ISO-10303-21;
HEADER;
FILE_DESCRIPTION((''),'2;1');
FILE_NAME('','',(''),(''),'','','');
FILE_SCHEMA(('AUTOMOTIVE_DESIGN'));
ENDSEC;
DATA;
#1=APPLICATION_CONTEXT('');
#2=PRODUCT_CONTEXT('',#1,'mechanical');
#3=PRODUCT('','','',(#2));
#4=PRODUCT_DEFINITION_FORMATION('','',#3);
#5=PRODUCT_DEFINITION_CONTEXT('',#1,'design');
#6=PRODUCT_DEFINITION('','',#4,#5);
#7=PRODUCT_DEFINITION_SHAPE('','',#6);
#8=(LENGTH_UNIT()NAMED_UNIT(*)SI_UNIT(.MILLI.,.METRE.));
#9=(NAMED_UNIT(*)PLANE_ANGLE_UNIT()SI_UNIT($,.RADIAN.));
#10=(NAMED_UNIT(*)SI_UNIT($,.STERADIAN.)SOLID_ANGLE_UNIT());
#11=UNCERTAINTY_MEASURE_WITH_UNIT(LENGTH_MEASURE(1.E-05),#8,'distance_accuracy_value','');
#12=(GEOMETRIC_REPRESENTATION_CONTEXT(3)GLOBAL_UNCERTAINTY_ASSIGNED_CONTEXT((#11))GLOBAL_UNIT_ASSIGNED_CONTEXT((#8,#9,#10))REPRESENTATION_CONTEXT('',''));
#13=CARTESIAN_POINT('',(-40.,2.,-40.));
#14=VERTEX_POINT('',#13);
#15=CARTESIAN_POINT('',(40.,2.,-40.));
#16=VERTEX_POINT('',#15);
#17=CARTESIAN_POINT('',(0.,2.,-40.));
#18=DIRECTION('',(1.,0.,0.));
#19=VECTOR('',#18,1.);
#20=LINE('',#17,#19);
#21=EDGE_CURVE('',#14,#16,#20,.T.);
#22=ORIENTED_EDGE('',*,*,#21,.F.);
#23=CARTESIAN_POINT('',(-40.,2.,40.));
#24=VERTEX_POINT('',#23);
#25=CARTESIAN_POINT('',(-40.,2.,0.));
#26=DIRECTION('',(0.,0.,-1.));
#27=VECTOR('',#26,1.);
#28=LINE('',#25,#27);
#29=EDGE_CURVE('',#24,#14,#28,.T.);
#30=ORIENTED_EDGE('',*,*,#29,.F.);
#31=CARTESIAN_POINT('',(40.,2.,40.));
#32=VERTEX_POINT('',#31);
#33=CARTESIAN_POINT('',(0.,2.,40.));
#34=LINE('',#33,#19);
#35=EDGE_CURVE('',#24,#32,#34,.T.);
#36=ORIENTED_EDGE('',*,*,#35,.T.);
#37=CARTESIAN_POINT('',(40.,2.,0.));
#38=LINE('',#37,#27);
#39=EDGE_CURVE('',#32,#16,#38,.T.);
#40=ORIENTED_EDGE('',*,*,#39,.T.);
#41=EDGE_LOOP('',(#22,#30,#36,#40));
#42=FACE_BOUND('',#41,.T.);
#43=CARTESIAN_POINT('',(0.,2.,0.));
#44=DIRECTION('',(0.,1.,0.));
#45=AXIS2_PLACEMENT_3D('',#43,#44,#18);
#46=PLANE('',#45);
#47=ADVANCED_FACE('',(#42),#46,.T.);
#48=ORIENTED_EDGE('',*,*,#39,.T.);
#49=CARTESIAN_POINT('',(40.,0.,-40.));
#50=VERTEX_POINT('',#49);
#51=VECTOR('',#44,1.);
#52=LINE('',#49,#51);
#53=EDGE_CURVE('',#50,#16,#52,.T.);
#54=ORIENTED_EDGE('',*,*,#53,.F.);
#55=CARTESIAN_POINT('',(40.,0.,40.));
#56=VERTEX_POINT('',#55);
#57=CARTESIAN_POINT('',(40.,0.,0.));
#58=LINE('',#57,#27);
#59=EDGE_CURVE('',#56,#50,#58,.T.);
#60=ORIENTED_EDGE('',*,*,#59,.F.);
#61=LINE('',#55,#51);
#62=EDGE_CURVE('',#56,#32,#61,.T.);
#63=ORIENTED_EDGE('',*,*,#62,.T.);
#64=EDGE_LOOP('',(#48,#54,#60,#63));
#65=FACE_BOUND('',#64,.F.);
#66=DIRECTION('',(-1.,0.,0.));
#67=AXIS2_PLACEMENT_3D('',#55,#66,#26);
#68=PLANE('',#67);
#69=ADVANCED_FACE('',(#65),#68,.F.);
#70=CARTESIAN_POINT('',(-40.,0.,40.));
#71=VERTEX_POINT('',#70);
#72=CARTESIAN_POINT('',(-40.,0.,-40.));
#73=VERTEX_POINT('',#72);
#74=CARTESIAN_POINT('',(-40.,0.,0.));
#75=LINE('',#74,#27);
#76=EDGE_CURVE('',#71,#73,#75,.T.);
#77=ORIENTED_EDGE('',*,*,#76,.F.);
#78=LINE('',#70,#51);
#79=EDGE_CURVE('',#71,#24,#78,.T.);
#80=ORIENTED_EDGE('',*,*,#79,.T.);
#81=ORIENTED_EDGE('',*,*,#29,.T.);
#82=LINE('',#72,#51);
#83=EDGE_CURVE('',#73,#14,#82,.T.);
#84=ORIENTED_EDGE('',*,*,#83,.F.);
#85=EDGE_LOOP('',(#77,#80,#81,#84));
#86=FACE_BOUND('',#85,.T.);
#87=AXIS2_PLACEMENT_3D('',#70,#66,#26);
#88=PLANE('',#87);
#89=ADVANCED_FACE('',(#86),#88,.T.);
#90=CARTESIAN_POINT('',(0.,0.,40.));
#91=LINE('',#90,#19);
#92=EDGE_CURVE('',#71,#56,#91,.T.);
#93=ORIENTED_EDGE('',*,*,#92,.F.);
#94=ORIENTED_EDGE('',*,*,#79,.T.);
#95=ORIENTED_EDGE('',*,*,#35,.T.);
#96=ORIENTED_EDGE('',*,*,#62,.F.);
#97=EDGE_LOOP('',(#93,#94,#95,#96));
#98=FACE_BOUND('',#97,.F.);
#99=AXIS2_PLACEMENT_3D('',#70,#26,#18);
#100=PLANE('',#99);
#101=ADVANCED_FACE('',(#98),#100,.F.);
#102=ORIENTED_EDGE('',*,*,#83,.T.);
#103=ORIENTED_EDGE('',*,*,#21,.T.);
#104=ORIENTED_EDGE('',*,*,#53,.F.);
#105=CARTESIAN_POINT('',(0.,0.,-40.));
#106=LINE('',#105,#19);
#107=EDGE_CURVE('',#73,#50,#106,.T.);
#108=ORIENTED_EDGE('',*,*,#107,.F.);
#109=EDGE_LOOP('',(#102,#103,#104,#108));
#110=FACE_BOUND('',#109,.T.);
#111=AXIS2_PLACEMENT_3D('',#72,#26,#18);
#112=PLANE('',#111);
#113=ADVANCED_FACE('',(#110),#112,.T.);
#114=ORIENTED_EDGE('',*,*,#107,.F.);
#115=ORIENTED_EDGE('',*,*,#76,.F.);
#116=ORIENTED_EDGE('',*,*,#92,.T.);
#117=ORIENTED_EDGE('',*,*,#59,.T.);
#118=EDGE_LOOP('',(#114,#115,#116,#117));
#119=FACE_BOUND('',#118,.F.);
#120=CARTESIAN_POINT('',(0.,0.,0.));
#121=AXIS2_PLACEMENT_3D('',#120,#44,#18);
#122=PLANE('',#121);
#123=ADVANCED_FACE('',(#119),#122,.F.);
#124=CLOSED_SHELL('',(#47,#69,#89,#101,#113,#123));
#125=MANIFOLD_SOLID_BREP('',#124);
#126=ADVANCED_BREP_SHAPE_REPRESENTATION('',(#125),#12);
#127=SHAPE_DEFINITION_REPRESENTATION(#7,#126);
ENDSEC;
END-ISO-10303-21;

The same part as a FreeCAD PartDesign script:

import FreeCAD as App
import Part
import Sketcher

doc = App.newDocument("Part")
body = doc.addObject("PartDesign::Body", "Body")

# Sketch on XZ plane
sketch1 = body.newObject("Sketcher::SketchObject", "Sketch")
sketch1.AttachmentSupport = (doc.getObject("XZ_Plane"), [""])
sketch1.MapMode = "FlatFace"
sketch1.addGeometry(Part.LineSegment(App.Vector(-40, -40, 0), App.Vector(-40, 40, 0)), False)
sketch1.addGeometry(Part.LineSegment(App.Vector(-40, 40, 0), App.Vector(40, 40, 0)), False)
sketch1.addGeometry(Part.LineSegment(App.Vector(40, 40, 0), App.Vector(40, -40, 0)), False)
sketch1.addGeometry(Part.LineSegment(App.Vector(40, -40, 0), App.Vector(-40, -40, 0)), False)
sketch1.addConstraint(Sketcher.Constraint("Coincident", 0, 2, 1, 1))
sketch1.addConstraint(Sketcher.Constraint("Coincident", 1, 2, 2, 1))
sketch1.addConstraint(Sketcher.Constraint("Coincident", 2, 2, 3, 1))
sketch1.addConstraint(Sketcher.Constraint("Coincident", 3, 2, 0, 1))
sketch1.addConstraint(Sketcher.Constraint("Vertical", 0))
sketch1.addConstraint(Sketcher.Constraint("Horizontal", 1))
sketch1.addConstraint(Sketcher.Constraint("Vertical", 2))
sketch1.addConstraint(Sketcher.Constraint("Horizontal", 3))
sketch1.addConstraint(Sketcher.Constraint("Symmetric", 0, 2, 2, 2, -1, 1))
sketch1.addConstraint(Sketcher.Constraint("Equal", 3, 0))
sketch1.addConstraint(Sketcher.Constraint("DistanceX", 1, 1, 1, 2, 80.0))
pad1 = body.newObject("PartDesign::Pad", "Pad")
pad1.Profile = sketch1
pad1.Length = 2
pad1.Reversed = True

doc.recompute()
